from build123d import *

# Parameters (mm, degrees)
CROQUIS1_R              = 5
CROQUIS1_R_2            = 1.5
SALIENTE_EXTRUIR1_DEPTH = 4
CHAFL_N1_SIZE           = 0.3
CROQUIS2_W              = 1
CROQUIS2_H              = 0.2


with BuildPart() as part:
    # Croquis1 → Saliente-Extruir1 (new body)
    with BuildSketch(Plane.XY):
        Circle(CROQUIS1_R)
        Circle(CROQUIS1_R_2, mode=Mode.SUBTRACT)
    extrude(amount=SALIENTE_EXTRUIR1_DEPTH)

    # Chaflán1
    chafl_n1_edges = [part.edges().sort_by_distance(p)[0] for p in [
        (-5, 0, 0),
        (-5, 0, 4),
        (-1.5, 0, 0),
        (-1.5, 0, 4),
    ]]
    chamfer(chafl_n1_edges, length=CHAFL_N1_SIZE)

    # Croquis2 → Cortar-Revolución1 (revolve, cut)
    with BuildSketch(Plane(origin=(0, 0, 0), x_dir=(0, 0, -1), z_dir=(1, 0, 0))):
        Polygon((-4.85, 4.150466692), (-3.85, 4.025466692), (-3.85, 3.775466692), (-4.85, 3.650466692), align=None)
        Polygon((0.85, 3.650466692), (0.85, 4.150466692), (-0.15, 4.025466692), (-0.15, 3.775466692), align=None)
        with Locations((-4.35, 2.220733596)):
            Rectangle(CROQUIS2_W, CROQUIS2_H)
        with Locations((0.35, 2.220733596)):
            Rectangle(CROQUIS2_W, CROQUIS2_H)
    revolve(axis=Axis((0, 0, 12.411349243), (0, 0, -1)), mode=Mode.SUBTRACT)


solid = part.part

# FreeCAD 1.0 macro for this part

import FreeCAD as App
import Part
import Sketcher
Q = App.Units.Quantity


def edges_at(feature, points):
    """Names of the edges that pass closest to the given points."""
    edges = feature.Shape.Edges
    near = lambda p: min(range(len(edges)), key=lambda i: edges[i].distToShape(Part.Vertex(*p))[0])
    return sorted({f"Edge{near(p) + 1}" for p in points})


def add_polygon(sketch, points):
    """Adds a closed chain of lines whose ends are joined by coincident constraints."""
    first, n = sketch.GeometryCount, len(points)
    for a, b in zip(points, points[1:] + points[:1]):
        sketch.addGeometry(Part.LineSegment(App.Vector(*a, 0), App.Vector(*b, 0)), False)
    for i in range(n):
        sketch.addConstraint(Sketcher.Constraint("Coincident", first + i, 2, first + (i + 1) % n, 1))

doc = App.newDocument("Part")
body = doc.addObject("PartDesign::Body", "Body")

# Sketch on XY plane
sketch1 = doc.addObject("Sketcher::SketchObject", "Sketch")
body.addObject(sketch1)
sketch1.AttachmentSupport = (doc.XY_Plane, [""])
sketch1.MapMode = "FlatFace"
sketch1.addGeometry(Part.Circle(App.Vector(0, 0, 0), App.Vector(0, 0, 1), 5), False)
sketch1.addGeometry(Part.Circle(App.Vector(0, 0, 0), App.Vector(0, 0, 1), 1.5), False)
sketch1.addConstraint(Sketcher.Constraint("Coincident", 0, 3, -1, 1))
sketch1.addConstraint(Sketcher.Constraint("Coincident", 1, 3, -1, 1))
sketch1.addConstraint(Sketcher.Constraint("Diameter", 0, Q("10 mm")))
sketch1.addConstraint(Sketcher.Constraint("Diameter", 1, Q("3 mm")))
pad1 = doc.addObject("PartDesign::Pad", "Pad")
body.addObject(pad1)
pad1.Profile = sketch1
pad1.Length = 4
doc.recompute()

chamfer = doc.addObject("PartDesign::Chamfer", "Chamfer")
body.addObject(chamfer)
chamfer.Base = (pad1, edges_at(pad1, [
    (-5, 0, 0),
    (-5, 0, 4),
    (-1.5, 0, 0),
    (-1.5, 0, 4),
]))
chamfer.Size = 0.3

# Sketch on YZ plane
sketch2 = doc.addObject("Sketcher::SketchObject", "Sketch001")
body.addObject(sketch2)
sketch2.AttachmentSupport = (doc.YZ_Plane, [""])
sketch2.MapMode = "FlatFace"
add_polygon(sketch2, [(4.03, 3.85), (4.15, 4.85), (3.65, 4.85), (3.78, 3.85)])  # lines 0-3
add_polygon(sketch2, [(3.65, -0.85), (4.15, -0.85), (4.03, 0.15), (3.78, 0.15)])  # lines 4-7
add_polygon(sketch2, [(2.32, 4.85), (2.12, 4.85), (2.12, 3.85), (2.32, 3.85)])  # lines 8-11
add_polygon(sketch2, [(2.32, 0.15), (2.12, 0.15), (2.12, -0.85), (2.32, -0.85)])  # lines 12-15
sketch2.addConstraint(Sketcher.Constraint("Horizontal", 1))
sketch2.addConstraint(Sketcher.Constraint("Horizontal", 3))
sketch2.addConstraint(Sketcher.Constraint("Horizontal", 4))
sketch2.addConstraint(Sketcher.Constraint("Horizontal", 6))
sketch2.addConstraint(Sketcher.Constraint("Horizontal", 8))
sketch2.addConstraint(Sketcher.Constraint("Vertical", 9))
sketch2.addConstraint(Sketcher.Constraint("Horizontal", 10))
sketch2.addConstraint(Sketcher.Constraint("Vertical", 11))
sketch2.addConstraint(Sketcher.Constraint("Horizontal", 12))
sketch2.addConstraint(Sketcher.Constraint("Vertical", 13))
sketch2.addConstraint(Sketcher.Constraint("Horizontal", 14))
sketch2.addConstraint(Sketcher.Constraint("Vertical", 15))
sketch2.addConstraint(Sketcher.Constraint("Parallel", 2, 5))
sketch2.addConstraint(Sketcher.Constraint("Parallel", 0, 7))
sketch2.addConstraint(Sketcher.Constraint("Horizontal", 1, 2, 8, 2))
sketch2.addConstraint(Sketcher.Constraint("Horizontal", 3, 2, 9, 2))
sketch2.addConstraint(Sketcher.Constraint("Horizontal", 6, 2, 12, 2))
sketch2.addConstraint(Sketcher.Constraint("Horizontal", 7, 2, 13, 2))
sketch2.addConstraint(Sketcher.Constraint("Vertical", 0, 2, 4, 2))
sketch2.addConstraint(Sketcher.Constraint("Vertical", 3, 2, 5, 2))
sketch2.addConstraint(Sketcher.Constraint("Vertical", 2, 2, 6, 2))
sketch2.addConstraint(Sketcher.Constraint("Vertical", 1, 2, 7, 2))
sketch2.addConstraint(Sketcher.Constraint("Vertical", 9, 2, 12, 2))
sketch2.addConstraint(Sketcher.Constraint("Vertical", 11, 2, 14, 2))
sketch2.addConstraint(Sketcher.Constraint("DistanceY", 9, 2, 9, 1, Q("1 mm")))
sketch2.addConstraint(Sketcher.Constraint("DistanceX", 1, 2, 1, 1, Q("0.5 mm")))
sketch2.addConstraint(Sketcher.Constraint("DistanceX", 8, 2, 8, 1, Q("0.2 mm")))
sketch2.addConstraint(Sketcher.Constraint("DistanceX", 3, 1, 3, 2, Q("0.25 mm")))
sketch2.addConstraint(Sketcher.Constraint("DistanceY", 4, 2, 3, 2, Q("4.7 mm")))
sketch2.addConstraint(Sketcher.Constraint("DistanceY", -1, 1, 0, 2, Q("4.85 mm")))
sketch2.addConstraint(Sketcher.Constraint("DistanceX", -1, 1, 0, 2, Q("4.150467 mm")))
sketch2.addConstraint(Sketcher.Constraint("DistanceX", -1, 1, 8, 2, Q("2.120734 mm")))
groove = doc.addObject("PartDesign::Groove", "Groove")
body.addObject(groove)
groove.Profile = sketch2
groove.ReferenceAxis = (sketch2, ["V_Axis"])
groove.Angle = 360

doc.recompute()
